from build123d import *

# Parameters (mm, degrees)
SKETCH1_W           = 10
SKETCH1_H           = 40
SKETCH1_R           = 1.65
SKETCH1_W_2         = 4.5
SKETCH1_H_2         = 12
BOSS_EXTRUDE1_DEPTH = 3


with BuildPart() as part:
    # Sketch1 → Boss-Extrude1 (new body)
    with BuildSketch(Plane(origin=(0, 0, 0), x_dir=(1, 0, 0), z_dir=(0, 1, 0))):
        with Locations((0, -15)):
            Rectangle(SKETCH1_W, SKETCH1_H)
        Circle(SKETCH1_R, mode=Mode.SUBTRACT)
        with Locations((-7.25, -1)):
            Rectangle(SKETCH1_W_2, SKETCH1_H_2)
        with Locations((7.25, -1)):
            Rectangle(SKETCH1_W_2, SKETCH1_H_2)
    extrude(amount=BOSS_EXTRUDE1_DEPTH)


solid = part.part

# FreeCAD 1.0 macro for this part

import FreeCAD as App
import Part
import Sketcher

V = App.Vector
Q = App.Units.Quantity

doc = App.newDocument("Part")
params = doc.addObject("Spreadsheet::Sheet", "Params")
for row, (alias, value) in enumerate([
    ("sketch1_diameter", "3.3 mm"),
    ("sketch1_width", "10 mm"),
    ("sketch1_width2", "19 mm"),
    ("sketch1_height", "28 mm"),
    ("sketch1_height2", "12 mm"),
    ("pad1_length", "3 mm"),
], start=1):
    params.set(f"A{row}", alias)
    params.set(f"B{row}", "=" + value)
    params.setAlias(f"B{row}", alias)

body = doc.addObject("PartDesign::Body", "Body")

sketch1 = body.newObject("Sketcher::SketchObject", "Sketch")
sketch1.AttachmentSupport = (doc.getObject("XZ_Plane"), [""])
sketch1.MapMode = "FlatFace"
sketch1.addGeometry([
    Part.LineSegment(V(-5, 7, 0), V(-5, 35, 0)),
    Part.LineSegment(V(-5, 35, 0), V(5, 35, 0)),
    Part.LineSegment(V(5, 35, 0), V(5, 7, 0)),
    Part.LineSegment(V(5, 7, 0), V(9.5, 7, 0)),
    Part.LineSegment(V(9.5, 7, 0), V(9.5, -5, 0)),
    Part.LineSegment(V(9.5, -5, 0), V(-9.5, -5, 0)),
    Part.LineSegment(V(-9.5, -5, 0), V(-9.5, 7, 0)),
    Part.LineSegment(V(-9.5, 7, 0), V(-5, 7, 0)),
    Part.Circle(V(0, 0, 0), V(0, 0, 1), 1.6),
], False)
sketch1.addConstraint([
    Sketcher.Constraint("Coincident", 0, 2, 1, 1),
    Sketcher.Constraint("Coincident", 1, 2, 2, 1),
    Sketcher.Constraint("Coincident", 2, 2, 3, 1),
    Sketcher.Constraint("Coincident", 3, 2, 4, 1),
    Sketcher.Constraint("Coincident", 4, 2, 5, 1),
    Sketcher.Constraint("Coincident", 5, 2, 6, 1),
    Sketcher.Constraint("Coincident", 6, 2, 7, 1),
    Sketcher.Constraint("Coincident", 7, 2, 0, 1),
    Sketcher.Constraint("Vertical", 0),
    Sketcher.Constraint("Horizontal", 1),
    Sketcher.Constraint("Vertical", 2),
    Sketcher.Constraint("Horizontal", 3),
    Sketcher.Constraint("Vertical", 4),
    Sketcher.Constraint("Horizontal", 5),
    Sketcher.Constraint("Vertical", 6),
    Sketcher.Constraint("Horizontal", 7),
    Sketcher.Constraint("Coincident", 8, 3, -1, 1),
    Sketcher.Constraint("Symmetric", 3, 2, 6, 2, -2),
    Sketcher.Constraint("Equal", 3, 7),
    Sketcher.Constraint("Diameter", 8, Q("3.3 mm")),
    Sketcher.Constraint("DistanceX", 1, 1, 1, 2, Q("10 mm")),
    Sketcher.Constraint("DistanceX", 5, 2, 5, 1, Q("19 mm")),
    Sketcher.Constraint("DistanceY", 0, 1, 0, 2, Q("28 mm")),
    Sketcher.Constraint("DistanceY", 4, 2, 4, 1, Q("12 mm")),
    Sketcher.Constraint("DistanceY", -1, 1, 0, 2, Q("35 mm")),
])
sketch1.setExpression("Constraints[19]", "Params.sketch1_diameter")
sketch1.setExpression("Constraints[20]", "Params.sketch1_width")
sketch1.setExpression("Constraints[21]", "Params.sketch1_width2")
sketch1.setExpression("Constraints[22]", "Params.sketch1_height")
sketch1.setExpression("Constraints[23]", "Params.sketch1_height2")
pad1 = body.newObject("PartDesign::Pad", "Pad")
pad1.Profile = sketch1
pad1.setExpression("Length", "Params.pad1_length")
pad1.Reversed = True

doc.recompute()
